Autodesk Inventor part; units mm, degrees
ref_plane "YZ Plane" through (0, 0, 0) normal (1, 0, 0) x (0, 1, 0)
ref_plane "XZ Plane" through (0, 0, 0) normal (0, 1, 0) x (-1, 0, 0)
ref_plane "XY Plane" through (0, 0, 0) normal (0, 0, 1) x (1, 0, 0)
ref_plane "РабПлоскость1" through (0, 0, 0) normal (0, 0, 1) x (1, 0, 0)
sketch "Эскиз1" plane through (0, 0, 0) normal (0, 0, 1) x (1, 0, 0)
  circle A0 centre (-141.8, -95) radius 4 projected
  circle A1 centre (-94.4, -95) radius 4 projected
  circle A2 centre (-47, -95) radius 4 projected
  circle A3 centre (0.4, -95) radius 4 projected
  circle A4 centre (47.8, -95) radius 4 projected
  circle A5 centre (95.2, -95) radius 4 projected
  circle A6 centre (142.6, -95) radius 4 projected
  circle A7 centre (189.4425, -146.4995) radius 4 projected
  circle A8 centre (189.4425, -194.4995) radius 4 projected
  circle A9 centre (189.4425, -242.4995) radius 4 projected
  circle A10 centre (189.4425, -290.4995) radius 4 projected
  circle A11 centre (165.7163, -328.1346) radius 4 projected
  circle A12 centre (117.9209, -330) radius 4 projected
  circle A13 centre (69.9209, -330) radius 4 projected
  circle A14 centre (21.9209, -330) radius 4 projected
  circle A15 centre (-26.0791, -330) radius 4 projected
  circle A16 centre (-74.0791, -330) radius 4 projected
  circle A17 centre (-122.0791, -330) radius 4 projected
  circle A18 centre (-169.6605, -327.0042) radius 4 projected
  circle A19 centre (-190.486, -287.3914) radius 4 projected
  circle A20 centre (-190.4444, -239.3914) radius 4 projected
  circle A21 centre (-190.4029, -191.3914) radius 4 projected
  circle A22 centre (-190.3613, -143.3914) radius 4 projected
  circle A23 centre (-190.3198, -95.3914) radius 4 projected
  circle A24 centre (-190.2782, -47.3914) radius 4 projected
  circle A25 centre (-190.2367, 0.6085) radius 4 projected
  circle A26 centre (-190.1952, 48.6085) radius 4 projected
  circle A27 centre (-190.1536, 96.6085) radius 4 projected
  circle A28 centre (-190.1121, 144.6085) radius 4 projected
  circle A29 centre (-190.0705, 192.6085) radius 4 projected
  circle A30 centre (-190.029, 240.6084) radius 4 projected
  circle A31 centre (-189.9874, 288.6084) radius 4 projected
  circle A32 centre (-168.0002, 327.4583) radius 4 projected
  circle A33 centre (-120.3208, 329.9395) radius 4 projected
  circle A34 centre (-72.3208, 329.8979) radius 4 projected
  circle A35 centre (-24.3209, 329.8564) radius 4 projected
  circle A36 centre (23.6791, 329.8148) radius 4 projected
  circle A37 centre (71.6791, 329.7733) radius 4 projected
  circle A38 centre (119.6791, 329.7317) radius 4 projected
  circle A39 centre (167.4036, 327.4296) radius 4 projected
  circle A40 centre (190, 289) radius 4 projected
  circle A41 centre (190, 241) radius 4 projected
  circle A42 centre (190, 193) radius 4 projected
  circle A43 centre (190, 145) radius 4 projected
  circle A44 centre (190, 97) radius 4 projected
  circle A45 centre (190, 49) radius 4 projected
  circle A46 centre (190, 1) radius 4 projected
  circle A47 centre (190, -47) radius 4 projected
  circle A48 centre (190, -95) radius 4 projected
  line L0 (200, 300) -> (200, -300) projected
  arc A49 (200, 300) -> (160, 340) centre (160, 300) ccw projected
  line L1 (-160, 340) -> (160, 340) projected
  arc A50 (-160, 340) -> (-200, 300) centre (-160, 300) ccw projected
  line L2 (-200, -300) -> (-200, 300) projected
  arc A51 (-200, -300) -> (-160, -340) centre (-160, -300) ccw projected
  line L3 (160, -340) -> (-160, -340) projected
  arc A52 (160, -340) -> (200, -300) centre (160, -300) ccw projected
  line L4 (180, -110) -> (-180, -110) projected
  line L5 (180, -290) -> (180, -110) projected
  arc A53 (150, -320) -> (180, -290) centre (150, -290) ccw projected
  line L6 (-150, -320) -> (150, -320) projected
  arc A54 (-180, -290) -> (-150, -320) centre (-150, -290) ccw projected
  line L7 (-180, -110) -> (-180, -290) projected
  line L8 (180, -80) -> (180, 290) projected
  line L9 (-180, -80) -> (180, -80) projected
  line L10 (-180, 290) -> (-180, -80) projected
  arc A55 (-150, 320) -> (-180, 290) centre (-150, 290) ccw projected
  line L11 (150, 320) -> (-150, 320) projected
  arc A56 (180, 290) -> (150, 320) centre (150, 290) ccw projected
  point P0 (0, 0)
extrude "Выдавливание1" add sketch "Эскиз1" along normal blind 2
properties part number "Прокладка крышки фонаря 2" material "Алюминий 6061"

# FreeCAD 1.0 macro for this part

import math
import FreeCAD as App
import Part
import Sketcher

V = App.Vector

doc = App.newDocument("Part")
body = doc.addObject("PartDesign::Body", "Body")

sketch1 = doc.addObject("Sketcher::SketchObject", "Sketch")
body.addObject(sketch1)
sketch1.AttachmentSupport = (doc.XY_Plane, [""])
sketch1.MapMode = "FlatFace"
sketch1.addGeometry([
    Part.LineSegment(V(200, -300, 0), V(200, 300, 0)),
    Part.ArcOfCircle(Part.Circle(V(160, 300, 0), V(0, 0, 1), 40), math.radians(0), math.radians(90)),
    Part.LineSegment(V(160, 340, 0), V(-160, 340, 0)),
    Part.ArcOfCircle(Part.Circle(V(-160, 300, 0), V(0, 0, 1), 40), math.radians(90), math.radians(180)),
    Part.LineSegment(V(-200, 300, 0), V(-200, -300, 0)),
    Part.ArcOfCircle(Part.Circle(V(-160, -300, 0), V(0, 0, 1), 40), math.radians(180), math.radians(270)),
    Part.LineSegment(V(-160, -340, 0), V(160, -340, 0)),
    Part.ArcOfCircle(Part.Circle(V(160, -300, 0), V(0, 0, 1), 40), math.radians(-90), math.radians(0)),
    Part.Circle(V(-169.6605, -327.0042, 0), V(0, 0, 1), 4),
    Part.Circle(V(-190.486, -287.3914, 0), V(0, 0, 1), 4),
    Part.Circle(V(-122.0791, -330, 0), V(0, 0, 1), 4),
    Part.Circle(V(-190.4444, -239.3914, 0), V(0, 0, 1), 4),
    Part.Circle(V(-190.4029, -191.3914, 0), V(0, 0, 1), 4),
    Part.Circle(V(-74.0791, -330, 0), V(0, 0, 1), 4),
    Part.Circle(V(-26.0791, -330, 0), V(0, 0, 1), 4),
    Part.Circle(V(-190.3613, -143.3914, 0), V(0, 0, 1), 4),
    Part.Circle(V(-190.3198, -95.3914, 0), V(0, 0, 1), 4),
    Part.Circle(V(-141.8, -95, 0), V(0, 0, 1), 4),
    Part.Circle(V(-190.2782, -47.3914, 0), V(0, 0, 1), 4),
    Part.Circle(V(-94.4, -95, 0), V(0, 0, 1), 4),
    Part.Circle(V(-47, -95, 0), V(0, 0, 1), 4),
    Part.Circle(V(21.9209, -330, 0), V(0, 0, 1), 4),
    Part.Circle(V(69.9209, -330, 0), V(0, 0, 1), 4),
    Part.LineSegment(V(-180, -110, 0), V(180, -110, 0)),
    Part.LineSegment(V(180, -110, 0), V(180, -290, 0)),
    Part.ArcOfCircle(Part.Circle(V(150, -290, 0), V(0, 0, 1), 30), math.radians(-90), math.radians(0)),
    Part.LineSegment(V(150, -320, 0), V(-150, -320, 0)),
    Part.ArcOfCircle(Part.Circle(V(-150, -290, 0), V(0, 0, 1), 30), math.radians(180), math.radians(270)),
    Part.LineSegment(V(-180, -290, 0), V(-180, -110, 0)),
    Part.Circle(V(117.9209, -330, 0), V(0, 0, 1), 4),
    Part.Circle(V(165.7163, -328.1346, 0), V(0, 0, 1), 4),
    Part.Circle(V(189.4425, -290.4995, 0), V(0, 0, 1), 4),
    Part.Circle(V(189.4425, -242.4995, 0), V(0, 0, 1), 4),
    Part.Circle(V(189.4425, -194.4995, 0), V(0, 0, 1), 4),
    Part.Circle(V(0.4, -95, 0), V(0, 0, 1), 4),
    Part.Circle(V(47.8, -95, 0), V(0, 0, 1), 4),
    Part.Circle(V(95.2, -95, 0), V(0, 0, 1), 4),
    Part.Circle(V(142.6, -95, 0), V(0, 0, 1), 4),
    Part.Circle(V(189.4425, -146.4995, 0), V(0, 0, 1), 4),
    Part.Circle(V(190, -95, 0), V(0, 0, 1), 4),
    Part.Circle(V(190, -47, 0), V(0, 0, 1), 4),
    Part.Circle(V(-190.2367, 0.6085, 0), V(0, 0, 1), 4),
    Part.Circle(V(-190.1952, 48.6085, 0), V(0, 0, 1), 4),
    Part.Circle(V(-190.1536, 96.6085, 0), V(0, 0, 1), 4),
    Part.Circle(V(-190.1121, 144.6085, 0), V(0, 0, 1), 4),
    Part.Circle(V(-190.0705, 192.6085, 0), V(0, 0, 1), 4),
    Part.Circle(V(-190.029, 240.6084, 0), V(0, 0, 1), 4),
    Part.Circle(V(-189.9874, 288.6084, 0), V(0, 0, 1), 4),
    Part.Circle(V(-168.0002, 327.4583, 0), V(0, 0, 1), 4),
    Part.Circle(V(-120.3208, 329.9395, 0), V(0, 0, 1), 4),
    Part.Circle(V(-72.3208, 329.8979, 0), V(0, 0, 1), 4),
    Part.Circle(V(-24.3209, 329.8564, 0), V(0, 0, 1), 4),
    Part.LineSegment(V(180, 290, 0), V(180, -80, 0)),
    Part.LineSegment(V(180, -80, 0), V(-180, -80, 0)),
    Part.LineSegment(V(-180, -80, 0), V(-180, 290, 0)),
    Part.ArcOfCircle(Part.Circle(V(-150, 290, 0), V(0, 0, 1), 30), math.radians(90), math.radians(180)),
    Part.LineSegment(V(-150, 320, 0), V(150, 320, 0)),
    Part.ArcOfCircle(Part.Circle(V(150, 290, 0), V(0, 0, 1), 30), math.radians(0), math.radians(90)),
    Part.Circle(V(190, 1, 0), V(0, 0, 1), 4),
    Part.Circle(V(190, 49, 0), V(0, 0, 1), 4),
    Part.Circle(V(190, 97, 0), V(0, 0, 1), 4),
    Part.Circle(V(190, 145, 0), V(0, 0, 1), 4),
    Part.Circle(V(23.6791, 329.8148, 0), V(0, 0, 1), 4),
    Part.Circle(V(71.6791, 329.7733, 0), V(0, 0, 1), 4),
    Part.Circle(V(190, 193, 0), V(0, 0, 1), 4),
    Part.Circle(V(190, 241, 0), V(0, 0, 1), 4),
    Part.Circle(V(119.6791, 329.7317, 0), V(0, 0, 1), 4),
    Part.Circle(V(190, 289, 0), V(0, 0, 1), 4),
    Part.Circle(V(167.4036, 327.4296, 0), V(0, 0, 1), 4),
], False)
sketch1.addConstraint([
    Sketcher.Constraint("Tangent", 0, 2, 1, 1),
    Sketcher.Constraint("Tangent", 1, 2, 2, 1),
    Sketcher.Constraint("Tangent", 2, 2, 3, 1),
    Sketcher.Constraint("Tangent", 3, 2, 4, 1),
    Sketcher.Constraint("Tangent", 4, 2, 5, 1),
    Sketcher.Constraint("Tangent", 5, 2, 6, 1),
    Sketcher.Constraint("Tangent", 6, 2, 7, 1),
    Sketcher.Constraint("Tangent", 7, 2, 0, 1),
    Sketcher.Constraint("Coincident", 23, 2, 24, 1),
    Sketcher.Constraint("Tangent", 24, 2, 25, 2),
    Sketcher.Constraint("Tangent", 25, 1, 26, 1),
    Sketcher.Constraint("Tangent", 26, 2, 27, 2),
    Sketcher.Constraint("Tangent", 27, 1, 28, 1),
    Sketcher.Constraint("Coincident", 28, 2, 23, 1),
    Sketcher.Constraint("Coincident", 52, 2, 53, 1),
    Sketcher.Constraint("Coincident", 53, 2, 54, 1),
    Sketcher.Constraint("Tangent", 54, 2, 55, 2),
    Sketcher.Constraint("Tangent", 55, 1, 56, 1),
    Sketcher.Constraint("Tangent", 56, 2, 57, 2),
    Sketcher.Constraint("Tangent", 57, 1, 52, 1),
    Sketcher.Constraint("Vertical", 0),
    Sketcher.Constraint("Horizontal", 2),
    Sketcher.Constraint("Vertical", 4),
    Sketcher.Constraint("Horizontal", 6),
    Sketcher.Constraint("Horizontal", 23),
    Sketcher.Constraint("Vertical", 24),
    Sketcher.Constraint("Horizontal", 26),
    Sketcher.Constraint("Vertical", 28),
    Sketcher.Constraint("Vertical", 52),
    Sketcher.Constraint("Horizontal", 53),
    Sketcher.Constraint("Vertical", 54),
    Sketcher.Constraint("Horizontal", 56),
    Sketcher.Constraint("Equal", 1, 3),
    Sketcher.Constraint("Equal", 3, 5),
    Sketcher.Constraint("Equal", 5, 7),
    Sketcher.Constraint("Equal", 8, 9),
    Sketcher.Constraint("Equal", 9, 10),
    Sketcher.Constraint("Equal", 10, 11),
    Sketcher.Constraint("Equal", 11, 12),
    Sketcher.Constraint("Equal", 12, 13),
    Sketcher.Constraint("Equal", 13, 14),
    Sketcher.Constraint("Equal", 14, 15),
    Sketcher.Constraint("Equal", 15, 16),
    Sketcher.Constraint("Equal", 16, 17),
    Sketcher.Constraint("Equal", 17, 18),
    Sketcher.Constraint("Equal", 18, 19),
    Sketcher.Constraint("Equal", 19, 20),
    Sketcher.Constraint("Equal", 20, 21),
    Sketcher.Constraint("Equal", 21, 22),
    Sketcher.Constraint("Equal", 25, 27),
    Sketcher.Constraint("Equal", 22, 29),
    Sketcher.Constraint("Equal", 29, 30),
    Sketcher.Constraint("Equal", 30, 31),
    Sketcher.Constraint("Equal", 31, 32),
    Sketcher.Constraint("Equal", 32, 33),
    Sketcher.Constraint("Equal", 33, 34),
    Sketcher.Constraint("Equal", 34, 35),
    Sketcher.Constraint("Equal", 35, 36),
    Sketcher.Constraint("Equal", 36, 37),
    Sketcher.Constraint("Equal", 37, 38),
    Sketcher.Constraint("Equal", 38, 39),
    Sketcher.Constraint("Equal", 39, 40),
    Sketcher.Constraint("Equal", 40, 41),
    Sketcher.Constraint("Equal", 41, 42),
    Sketcher.Constraint("Equal", 42, 43),
    Sketcher.Constraint("Equal", 43, 44),
    Sketcher.Constraint("Equal", 44, 45),
    Sketcher.Constraint("Equal", 45, 46),
    Sketcher.Constraint("Equal", 46, 47),
    Sketcher.Constraint("Equal", 47, 48),
    Sketcher.Constraint("Equal", 48, 49),
    Sketcher.Constraint("Equal", 49, 50),
    Sketcher.Constraint("Equal", 50, 51),
    Sketcher.Constraint("Equal", 27, 55),
    Sketcher.Constraint("Equal", 55, 57),
    Sketcher.Constraint("Equal", 51, 58),
    Sketcher.Constraint("Equal", 58, 59),
    Sketcher.Constraint("Equal", 59, 60),
    Sketcher.Constraint("Equal", 60, 61),
    Sketcher.Constraint("Equal", 61, 62),
    Sketcher.Constraint("Equal", 62, 63),
    Sketcher.Constraint("Equal", 63, 64),
    Sketcher.Constraint("Equal", 64, 65),
    Sketcher.Constraint("Equal", 65, 66),
    Sketcher.Constraint("Equal", 66, 67),
    Sketcher.Constraint("Equal", 67, 68),
    Sketcher.Constraint("Symmetric", 1, 3, 5, 3, -1, 1),
    Sketcher.Constraint("Symmetric", 25, 3, 55, 3, -1, 1),
    Sketcher.Constraint("Horizontal", 10, 3, 13, 3),
    Sketcher.Constraint("Horizontal", 13, 3, 14, 3),
    Sketcher.Constraint("Horizontal", 17, 3, 19, 3),
    Sketcher.Constraint("Horizontal", 19, 3, 20, 3),
    Sketcher.Constraint("Horizontal", 14, 3, 21, 3),
    Sketcher.Constraint("Horizontal", 21, 3, 22, 3),
    Sketcher.Constraint("Horizontal", 22, 3, 29, 3),
    Sketcher.Constraint("Horizontal", 20, 3, 34, 3),
    Sketcher.Constraint("Horizontal", 34, 3, 35, 3),
    Sketcher.Constraint("Horizontal", 35, 3, 36, 3),
    Sketcher.Constraint("Horizontal", 36, 3, 37, 3),
    Sketcher.Constraint("Horizontal", 37, 3, 39, 3),
    Sketcher.Constraint("Vertical", 31, 3, 32, 3),
    Sketcher.Constraint("Vertical", 32, 3, 33, 3),
    Sketcher.Constraint("Vertical", 33, 3, 38, 3),
    Sketcher.Constraint("Vertical", 39, 3, 40, 3),
    Sketcher.Constraint("Vertical", 27, 3, 55, 3),
    Sketcher.Constraint("Vertical", 25, 3, 57, 3),
    Sketcher.Constraint("Vertical", 40, 3, 58, 3),
    Sketcher.Constraint("Vertical", 58, 3, 59, 3),
    Sketcher.Constraint("Vertical", 59, 3, 60, 3),
    Sketcher.Constraint("Vertical", 60, 3, 61, 3),
    Sketcher.Constraint("Vertical", 61, 3, 64, 3),
    Sketcher.Constraint("Vertical", 64, 3, 65, 3),
    Sketcher.Constraint("Vertical", 65, 3, 67, 3),
    Sketcher.Constraint("Diameter", 8, 8.0),
    Sketcher.Constraint("Radius", 1, 40.0),
    Sketcher.Constraint("Radius", 25, 30.0),
    Sketcher.Constraint("DistanceX", 2, 2, 2, 1, 320.0),
    Sketcher.Constraint("DistanceX", 23, 1, 23, 2, 360.0),
    Sketcher.Constraint("DistanceY", 0, 1, 0, 2, 600.0),
    Sketcher.Constraint("DistanceY", 24, 2, 24, 1, 180.0),
    Sketcher.Constraint("DistanceY", 52, 2, 52, 1, 370.0),
    Sketcher.Constraint("DistanceY", 10, 3, -1, 1, 330.0),
    Sketcher.Constraint("DistanceY", 17, 3, -1, 1, 95.0),
    Sketcher.Constraint("DistanceX", 20, 3, -1, 1, 47.0),
    Sketcher.Constraint("DistanceY", 25, 3, -1, 1, 290.0),
    Sketcher.Constraint("DistanceX", -1, 1, 39, 3, 190.0),
    Sketcher.Constraint("DistanceY", 40, 3, -1, 1, 47.0),
    Sketcher.Constraint("DistanceY", -1, 1, 58, 3, 1.0),
    Sketcher.Constraint("DistanceY", -1, 1, 59, 3, 49.0),
    Sketcher.Constraint("DistanceY", -1, 1, 60, 3, 97.0),
    Sketcher.Constraint("DistanceY", -1, 1, 61, 3, 145.0),
    Sketcher.Constraint("DistanceY", -1, 1, 64, 3, 193.0),
    Sketcher.Constraint("DistanceY", -1, 1, 65, 3, 241.0),
    Sketcher.Constraint("DistanceY", -1, 1, 67, 3, 289.0),
    Sketcher.Constraint("DistanceX", 17, 3, -1, 1, 141.8),
    Sketcher.Constraint("DistanceX", 19, 3, -1, 1, 94.4),
    Sketcher.Constraint("DistanceX", -1, 1, 34, 3, 0.4),
    Sketcher.Constraint("DistanceX", -1, 1, 35, 3, 47.8),
    Sketcher.Constraint("DistanceX", -1, 1, 36, 3, 95.2),
    Sketcher.Constraint("DistanceX", -1, 1, 37, 3, 142.6),
    Sketcher.Constraint("DistanceX", 9, 3, -1, 1, 190.486),
    Sketcher.Constraint("DistanceX", 10, 3, -1, 1, 122.079),
    Sketcher.Constraint("DistanceX", 12, 3, -1, 1, 190.403),
    Sketcher.Constraint("DistanceX", 13, 3, -1, 1, 74.079),
    Sketcher.Constraint("DistanceX", 14, 3, -1, 1, 26.079),
    Sketcher.Constraint("DistanceX", -1, 1, 21, 3, 21.921),
    Sketcher.Constraint("DistanceX", -1, 1, 22, 3, 69.921),
    Sketcher.Constraint("DistanceX", -1, 1, 29, 3, 117.921),
    Sketcher.Constraint("DistanceX", 44, 3, -1, 1, 190.112),
    Sketcher.Constraint("DistanceX", 46, 3, -1, 1, 190.029),
    Sketcher.Constraint("DistanceY", -1, 1, 50, 3, 329.898),
    Sketcher.Constraint("DistanceX", 51, 3, -1, 1, 24.321),
    Sketcher.Constraint("DistanceX", -1, 1, 62, 3, 23.679),
    Sketcher.Constraint("DistanceX", -1, 1, 63, 3, 71.679),
    Sketcher.Constraint("DistanceX", -1, 1, 66, 3, 119.679),
    Sketcher.Constraint("DistanceX", 8, 3, -1, 1, 169.6605),
    Sketcher.Constraint("DistanceY", 8, 3, -1, 1, 327.0042),
    Sketcher.Constraint("DistanceY", 9, 3, -1, 1, 287.3914),
    Sketcher.Constraint("DistanceX", 11, 3, -1, 1, 190.4444),
    Sketcher.Constraint("DistanceY", 11, 3, -1, 1, 239.3914),
    Sketcher.Constraint("DistanceY", 12, 3, -1, 1, 191.3914),
    Sketcher.Constraint("DistanceX", 15, 3, -1, 1, 190.3613),
    Sketcher.Constraint("DistanceY", 15, 3, -1, 1, 143.3914),
    Sketcher.Constraint("DistanceX", 16, 3, -1, 1, 190.3198),
    Sketcher.Constraint("DistanceY", 16, 3, -1, 1, 95.3914),
    Sketcher.Constraint("DistanceX", 18, 3, -1, 1, 190.2782),
    Sketcher.Constraint("DistanceY", 18, 3, -1, 1, 47.3914),
    Sketcher.Constraint("DistanceX", -1, 1, 30, 3, 165.7163),
    Sketcher.Constraint("DistanceY", 30, 3, -1, 1, 328.1346),
    Sketcher.Constraint("DistanceX", -1, 1, 31, 3, 189.4425),
    Sketcher.Constraint("DistanceY", 31, 3, -1, 1, 290.4995),
    Sketcher.Constraint("DistanceY", 32, 3, -1, 1, 242.4995),
    Sketcher.Constraint("DistanceY", 33, 3, -1, 1, 194.4995),
    Sketcher.Constraint("DistanceY", 38, 3, -1, 1, 146.4995),
    Sketcher.Constraint("DistanceX", 41, 3, -1, 1, 190.2367),
    Sketcher.Constraint("DistanceY", -1, 1, 41, 3, 0.6085),
    Sketcher.Constraint("DistanceX", 42, 3, -1, 1, 190.1952),
    Sketcher.Constraint("DistanceY", -1, 1, 42, 3, 48.6085),
    Sketcher.Constraint("DistanceX", 43, 3, -1, 1, 190.1536),
    Sketcher.Constraint("DistanceY", -1, 1, 43, 3, 96.6085),
    Sketcher.Constraint("DistanceY", -1, 1, 44, 3, 144.6085),
    Sketcher.Constraint("DistanceX", 45, 3, -1, 1, 190.0705),
    Sketcher.Constraint("DistanceY", -1, 1, 45, 3, 192.6085),
    Sketcher.Constraint("DistanceY", -1, 1, 46, 3, 240.6084),
    Sketcher.Constraint("DistanceX", 47, 3, -1, 1, 189.9874),
    Sketcher.Constraint("DistanceY", -1, 1, 47, 3, 288.6084),
    Sketcher.Constraint("DistanceX", 48, 3, -1, 1, 168.0002),
    Sketcher.Constraint("DistanceY", -1, 1, 48, 3, 327.4583),
    Sketcher.Constraint("DistanceX", 49, 3, -1, 1, 120.3208),
    Sketcher.Constraint("DistanceY", -1, 1, 49, 3, 329.9395),
    Sketcher.Constraint("DistanceX", 50, 3, -1, 1, 72.3208),
    Sketcher.Constraint("DistanceY", -1, 1, 51, 3, 329.8564),
    Sketcher.Constraint("DistanceY", -1, 1, 62, 3, 329.8148),
    Sketcher.Constraint("DistanceY", -1, 1, 63, 3, 329.7733),
    Sketcher.Constraint("DistanceY", -1, 1, 66, 3, 329.7317),
    Sketcher.Constraint("DistanceX", -1, 1, 68, 3, 167.4036),
    Sketcher.Constraint("DistanceY", -1, 1, 68, 3, 327.4296),
])
pad1 = doc.addObject("PartDesign::Pad", "Pad")
body.addObject(pad1)
pad1.Profile = sketch1
pad1.Length = 2

doc.recompute()
